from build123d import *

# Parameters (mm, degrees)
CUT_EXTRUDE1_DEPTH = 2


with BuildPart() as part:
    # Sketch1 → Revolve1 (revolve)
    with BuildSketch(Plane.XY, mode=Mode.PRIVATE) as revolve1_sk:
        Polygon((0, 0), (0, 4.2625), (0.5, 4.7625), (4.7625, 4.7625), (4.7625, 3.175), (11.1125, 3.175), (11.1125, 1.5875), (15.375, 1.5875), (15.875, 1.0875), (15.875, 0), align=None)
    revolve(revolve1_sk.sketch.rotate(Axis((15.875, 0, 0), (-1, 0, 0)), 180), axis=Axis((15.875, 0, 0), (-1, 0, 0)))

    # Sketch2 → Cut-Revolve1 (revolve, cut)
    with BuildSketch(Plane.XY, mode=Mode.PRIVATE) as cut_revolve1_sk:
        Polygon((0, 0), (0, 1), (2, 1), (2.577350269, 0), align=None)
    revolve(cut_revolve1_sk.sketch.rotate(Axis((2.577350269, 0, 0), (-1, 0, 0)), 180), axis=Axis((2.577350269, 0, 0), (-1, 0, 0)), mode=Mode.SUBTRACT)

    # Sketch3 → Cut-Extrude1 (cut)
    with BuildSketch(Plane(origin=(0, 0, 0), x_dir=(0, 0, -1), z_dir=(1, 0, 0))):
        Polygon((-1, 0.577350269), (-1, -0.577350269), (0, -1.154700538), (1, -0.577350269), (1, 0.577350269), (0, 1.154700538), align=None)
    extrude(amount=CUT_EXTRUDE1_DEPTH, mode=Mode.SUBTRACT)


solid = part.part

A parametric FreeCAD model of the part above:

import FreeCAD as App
import Part
import Sketcher
from FreeCAD import Vector
Q = App.Units.Quantity

doc = App.newDocument("Part")
body = doc.addObject("PartDesign::Body", "Body")

# Sketch on XY plane
sketch1 = doc.addObject("Sketcher::SketchObject", "Sketch")
body.addObject(sketch1)
sketch1.AttachmentSupport = (doc.XY_Plane, [""])
sketch1.MapMode = "FlatFace"
sketch1.addGeometry([
    Part.LineSegment(Vector(0, 4.3, 0), Vector(0, 0, 0)),  # 0
    Part.LineSegment(Vector(0, 0, 0), Vector(15.9, 0, 0)),  # 1
    Part.LineSegment(Vector(15.9, 0, 0), Vector(15.9, 1.1, 0)),  # 2
    Part.LineSegment(Vector(15.9, 1.1, 0), Vector(15.4, 1.6, 0)),  # 3
    Part.LineSegment(Vector(15.4, 1.6, 0), Vector(11.1, 1.6, 0)),  # 4
    Part.LineSegment(Vector(11.1, 1.6, 0), Vector(11.1, 3.2, 0)),  # 5
    Part.LineSegment(Vector(11.1, 3.2, 0), Vector(4.8, 3.2, 0)),  # 6
    Part.LineSegment(Vector(4.8, 3.2, 0), Vector(4.8, 4.8, 0)),  # 7
    Part.LineSegment(Vector(4.8, 4.8, 0), Vector(0.5, 4.8, 0)),  # 8
    Part.LineSegment(Vector(0.5, 4.8, 0), Vector(0, 4.3, 0)),  # 9
], False)
sketch1.addConstraint([
    Sketcher.Constraint("Coincident", 0, 2, 1, 1),
    Sketcher.Constraint("Coincident", 1, 2, 2, 1),
    Sketcher.Constraint("Coincident", 2, 2, 3, 1),
    Sketcher.Constraint("Coincident", 3, 2, 4, 1),
    Sketcher.Constraint("Coincident", 4, 2, 5, 1),
    Sketcher.Constraint("Coincident", 5, 2, 6, 1),
    Sketcher.Constraint("Coincident", 6, 2, 7, 1),
    Sketcher.Constraint("Coincident", 7, 2, 8, 1),
    Sketcher.Constraint("Coincident", 8, 2, 9, 1),
    Sketcher.Constraint("Coincident", 9, 2, 0, 1),
    Sketcher.Constraint("Vertical", 0),
    Sketcher.Constraint("Horizontal", 1),
    Sketcher.Constraint("Vertical", 2),
    Sketcher.Constraint("Horizontal", 4),
    Sketcher.Constraint("Vertical", 5),
    Sketcher.Constraint("Horizontal", 6),
    Sketcher.Constraint("Vertical", 7),
    Sketcher.Constraint("Horizontal", 8),
    Sketcher.Constraint("Coincident", 0, 2, -1, 1),
    Sketcher.Constraint("Perpendicular", 3, 9),
    Sketcher.Constraint("Equal", 4, 8),
    Sketcher.Constraint("Equal", 8, 0),
    Sketcher.Constraint("Equal", 5, 7),
    Sketcher.Constraint("Equal", 3, 9),
    Sketcher.Constraint("Angle", 3, Q("135 deg")),
    Sketcher.Constraint("DistanceX", 6, 2, 6, 1, Q("0.25 in")),
    Sketcher.Constraint("DistanceX", 1, 1, 1, 2, Q("0.625 in")),
    Sketcher.Constraint("DistanceY", 5, 1, 5, 2, Q("0.0625 in")),
    Sketcher.Constraint("DistanceX", 4, 2, 4, 1, 4.2625),
])
revolution = doc.addObject("PartDesign::Revolution", "Revolution")
body.addObject(revolution)
revolution.Profile = sketch1
revolution.ReferenceAxis = (sketch1, ["H_Axis"])
revolution.Angle = 360

# Sketch on XY plane
sketch2 = doc.addObject("Sketcher::SketchObject", "Sketch001")
body.addObject(sketch2)
sketch2.AttachmentSupport = (doc.XY_Plane, [""])
sketch2.MapMode = "FlatFace"
sketch2.addGeometry([
    Part.LineSegment(Vector(0, 1, 0), Vector(0, 0, 0)),
    Part.LineSegment(Vector(0, 0, 0), Vector(2.6, 0, 0)),
    Part.LineSegment(Vector(2.6, 0, 0), Vector(2, 1, 0)),
    Part.LineSegment(Vector(2, 1, 0), Vector(0, 1, 0)),
], False)
sketch2.addConstraint([
    Sketcher.Constraint("Coincident", 0, 2, 1, 1),
    Sketcher.Constraint("Coincident", 1, 2, 2, 1),
    Sketcher.Constraint("Coincident", 2, 2, 3, 1),
    Sketcher.Constraint("Coincident", 3, 2, 0, 1),
    Sketcher.Constraint("Vertical", 0),
    Sketcher.Constraint("Horizontal", 1),
    Sketcher.Constraint("Horizontal", 3),
    Sketcher.Constraint("Coincident", 0, 2, -1, 1),
    Sketcher.Constraint("Angle", 2, Q("120 deg")),
    Sketcher.Constraint("DistanceX", 3, 2, 3, 1, 2.0),
    Sketcher.Constraint("DistanceY", 0, 2, 0, 1, 1.0),
])
groove = doc.addObject("PartDesign::Groove", "Groove")
body.addObject(groove)
groove.Profile = sketch2
groove.ReferenceAxis = (sketch2, ["H_Axis"])
groove.Angle = 360

# Sketch on YZ plane
sketch3 = doc.addObject("Sketcher::SketchObject", "Sketch002")
body.addObject(sketch3)
sketch3.AttachmentSupport = (doc.YZ_Plane, [""])
sketch3.MapMode = "FlatFace"
sketch3.addGeometry([
    Part.LineSegment(Vector(0.6, 1, 0), Vector(-0.6, 1, 0)),  # 0
    Part.LineSegment(Vector(-0.6, 1, 0), Vector(-1.2, 0, 0)),  # 1
    Part.LineSegment(Vector(-1.2, 0, 0), Vector(-0.6, -1, 0)),  # 2
    Part.LineSegment(Vector(-0.6, -1, 0), Vector(0.6, -1, 0)),  # 3
    Part.LineSegment(Vector(0.6, -1, 0), Vector(1.2, 0, 0)),  # 4
    Part.LineSegment(Vector(1.2, 0, 0), Vector(0.6, 1, 0)),  # 5
], False)
sketch3.addConstraint([
    Sketcher.Constraint("Coincident", 0, 2, 1, 1),
    Sketcher.Constraint("Coincident", 1, 2, 2, 1),
    Sketcher.Constraint("Coincident", 2, 2, 3, 1),
    Sketcher.Constraint("Coincident", 3, 2, 4, 1),
    Sketcher.Constraint("Coincident", 4, 2, 5, 1),
    Sketcher.Constraint("Coincident", 5, 2, 0, 1),
    Sketcher.Constraint("Horizontal", 0),
    Sketcher.Constraint("Horizontal", 3),
    Sketcher.Constraint("Symmetric", 0, 2, 3, 2, -1, 1),
    Sketcher.Constraint("Symmetric", 1, 2, 4, 2, -1, 1),
    Sketcher.Constraint("PointOnObject", 1, 2, -1),
    Sketcher.Constraint("Parallel", 2, 5),
    Sketcher.Constraint("Vertical", 0, 2, 2, 2),
    Sketcher.Constraint("Angle", 1, Q("-120 deg")),
    Sketcher.Constraint("DistanceX", 0, 2, 0, 1, 1.154701),
    Sketcher.Constraint("Distance", 1, 1.154701),
])
pocket1 = doc.addObject("PartDesign::Pocket", "Pocket")
body.addObject(pocket1)
pocket1.Profile = sketch3
pocket1.Length = 2
pocket1.Reversed = True

doc.recompute()
